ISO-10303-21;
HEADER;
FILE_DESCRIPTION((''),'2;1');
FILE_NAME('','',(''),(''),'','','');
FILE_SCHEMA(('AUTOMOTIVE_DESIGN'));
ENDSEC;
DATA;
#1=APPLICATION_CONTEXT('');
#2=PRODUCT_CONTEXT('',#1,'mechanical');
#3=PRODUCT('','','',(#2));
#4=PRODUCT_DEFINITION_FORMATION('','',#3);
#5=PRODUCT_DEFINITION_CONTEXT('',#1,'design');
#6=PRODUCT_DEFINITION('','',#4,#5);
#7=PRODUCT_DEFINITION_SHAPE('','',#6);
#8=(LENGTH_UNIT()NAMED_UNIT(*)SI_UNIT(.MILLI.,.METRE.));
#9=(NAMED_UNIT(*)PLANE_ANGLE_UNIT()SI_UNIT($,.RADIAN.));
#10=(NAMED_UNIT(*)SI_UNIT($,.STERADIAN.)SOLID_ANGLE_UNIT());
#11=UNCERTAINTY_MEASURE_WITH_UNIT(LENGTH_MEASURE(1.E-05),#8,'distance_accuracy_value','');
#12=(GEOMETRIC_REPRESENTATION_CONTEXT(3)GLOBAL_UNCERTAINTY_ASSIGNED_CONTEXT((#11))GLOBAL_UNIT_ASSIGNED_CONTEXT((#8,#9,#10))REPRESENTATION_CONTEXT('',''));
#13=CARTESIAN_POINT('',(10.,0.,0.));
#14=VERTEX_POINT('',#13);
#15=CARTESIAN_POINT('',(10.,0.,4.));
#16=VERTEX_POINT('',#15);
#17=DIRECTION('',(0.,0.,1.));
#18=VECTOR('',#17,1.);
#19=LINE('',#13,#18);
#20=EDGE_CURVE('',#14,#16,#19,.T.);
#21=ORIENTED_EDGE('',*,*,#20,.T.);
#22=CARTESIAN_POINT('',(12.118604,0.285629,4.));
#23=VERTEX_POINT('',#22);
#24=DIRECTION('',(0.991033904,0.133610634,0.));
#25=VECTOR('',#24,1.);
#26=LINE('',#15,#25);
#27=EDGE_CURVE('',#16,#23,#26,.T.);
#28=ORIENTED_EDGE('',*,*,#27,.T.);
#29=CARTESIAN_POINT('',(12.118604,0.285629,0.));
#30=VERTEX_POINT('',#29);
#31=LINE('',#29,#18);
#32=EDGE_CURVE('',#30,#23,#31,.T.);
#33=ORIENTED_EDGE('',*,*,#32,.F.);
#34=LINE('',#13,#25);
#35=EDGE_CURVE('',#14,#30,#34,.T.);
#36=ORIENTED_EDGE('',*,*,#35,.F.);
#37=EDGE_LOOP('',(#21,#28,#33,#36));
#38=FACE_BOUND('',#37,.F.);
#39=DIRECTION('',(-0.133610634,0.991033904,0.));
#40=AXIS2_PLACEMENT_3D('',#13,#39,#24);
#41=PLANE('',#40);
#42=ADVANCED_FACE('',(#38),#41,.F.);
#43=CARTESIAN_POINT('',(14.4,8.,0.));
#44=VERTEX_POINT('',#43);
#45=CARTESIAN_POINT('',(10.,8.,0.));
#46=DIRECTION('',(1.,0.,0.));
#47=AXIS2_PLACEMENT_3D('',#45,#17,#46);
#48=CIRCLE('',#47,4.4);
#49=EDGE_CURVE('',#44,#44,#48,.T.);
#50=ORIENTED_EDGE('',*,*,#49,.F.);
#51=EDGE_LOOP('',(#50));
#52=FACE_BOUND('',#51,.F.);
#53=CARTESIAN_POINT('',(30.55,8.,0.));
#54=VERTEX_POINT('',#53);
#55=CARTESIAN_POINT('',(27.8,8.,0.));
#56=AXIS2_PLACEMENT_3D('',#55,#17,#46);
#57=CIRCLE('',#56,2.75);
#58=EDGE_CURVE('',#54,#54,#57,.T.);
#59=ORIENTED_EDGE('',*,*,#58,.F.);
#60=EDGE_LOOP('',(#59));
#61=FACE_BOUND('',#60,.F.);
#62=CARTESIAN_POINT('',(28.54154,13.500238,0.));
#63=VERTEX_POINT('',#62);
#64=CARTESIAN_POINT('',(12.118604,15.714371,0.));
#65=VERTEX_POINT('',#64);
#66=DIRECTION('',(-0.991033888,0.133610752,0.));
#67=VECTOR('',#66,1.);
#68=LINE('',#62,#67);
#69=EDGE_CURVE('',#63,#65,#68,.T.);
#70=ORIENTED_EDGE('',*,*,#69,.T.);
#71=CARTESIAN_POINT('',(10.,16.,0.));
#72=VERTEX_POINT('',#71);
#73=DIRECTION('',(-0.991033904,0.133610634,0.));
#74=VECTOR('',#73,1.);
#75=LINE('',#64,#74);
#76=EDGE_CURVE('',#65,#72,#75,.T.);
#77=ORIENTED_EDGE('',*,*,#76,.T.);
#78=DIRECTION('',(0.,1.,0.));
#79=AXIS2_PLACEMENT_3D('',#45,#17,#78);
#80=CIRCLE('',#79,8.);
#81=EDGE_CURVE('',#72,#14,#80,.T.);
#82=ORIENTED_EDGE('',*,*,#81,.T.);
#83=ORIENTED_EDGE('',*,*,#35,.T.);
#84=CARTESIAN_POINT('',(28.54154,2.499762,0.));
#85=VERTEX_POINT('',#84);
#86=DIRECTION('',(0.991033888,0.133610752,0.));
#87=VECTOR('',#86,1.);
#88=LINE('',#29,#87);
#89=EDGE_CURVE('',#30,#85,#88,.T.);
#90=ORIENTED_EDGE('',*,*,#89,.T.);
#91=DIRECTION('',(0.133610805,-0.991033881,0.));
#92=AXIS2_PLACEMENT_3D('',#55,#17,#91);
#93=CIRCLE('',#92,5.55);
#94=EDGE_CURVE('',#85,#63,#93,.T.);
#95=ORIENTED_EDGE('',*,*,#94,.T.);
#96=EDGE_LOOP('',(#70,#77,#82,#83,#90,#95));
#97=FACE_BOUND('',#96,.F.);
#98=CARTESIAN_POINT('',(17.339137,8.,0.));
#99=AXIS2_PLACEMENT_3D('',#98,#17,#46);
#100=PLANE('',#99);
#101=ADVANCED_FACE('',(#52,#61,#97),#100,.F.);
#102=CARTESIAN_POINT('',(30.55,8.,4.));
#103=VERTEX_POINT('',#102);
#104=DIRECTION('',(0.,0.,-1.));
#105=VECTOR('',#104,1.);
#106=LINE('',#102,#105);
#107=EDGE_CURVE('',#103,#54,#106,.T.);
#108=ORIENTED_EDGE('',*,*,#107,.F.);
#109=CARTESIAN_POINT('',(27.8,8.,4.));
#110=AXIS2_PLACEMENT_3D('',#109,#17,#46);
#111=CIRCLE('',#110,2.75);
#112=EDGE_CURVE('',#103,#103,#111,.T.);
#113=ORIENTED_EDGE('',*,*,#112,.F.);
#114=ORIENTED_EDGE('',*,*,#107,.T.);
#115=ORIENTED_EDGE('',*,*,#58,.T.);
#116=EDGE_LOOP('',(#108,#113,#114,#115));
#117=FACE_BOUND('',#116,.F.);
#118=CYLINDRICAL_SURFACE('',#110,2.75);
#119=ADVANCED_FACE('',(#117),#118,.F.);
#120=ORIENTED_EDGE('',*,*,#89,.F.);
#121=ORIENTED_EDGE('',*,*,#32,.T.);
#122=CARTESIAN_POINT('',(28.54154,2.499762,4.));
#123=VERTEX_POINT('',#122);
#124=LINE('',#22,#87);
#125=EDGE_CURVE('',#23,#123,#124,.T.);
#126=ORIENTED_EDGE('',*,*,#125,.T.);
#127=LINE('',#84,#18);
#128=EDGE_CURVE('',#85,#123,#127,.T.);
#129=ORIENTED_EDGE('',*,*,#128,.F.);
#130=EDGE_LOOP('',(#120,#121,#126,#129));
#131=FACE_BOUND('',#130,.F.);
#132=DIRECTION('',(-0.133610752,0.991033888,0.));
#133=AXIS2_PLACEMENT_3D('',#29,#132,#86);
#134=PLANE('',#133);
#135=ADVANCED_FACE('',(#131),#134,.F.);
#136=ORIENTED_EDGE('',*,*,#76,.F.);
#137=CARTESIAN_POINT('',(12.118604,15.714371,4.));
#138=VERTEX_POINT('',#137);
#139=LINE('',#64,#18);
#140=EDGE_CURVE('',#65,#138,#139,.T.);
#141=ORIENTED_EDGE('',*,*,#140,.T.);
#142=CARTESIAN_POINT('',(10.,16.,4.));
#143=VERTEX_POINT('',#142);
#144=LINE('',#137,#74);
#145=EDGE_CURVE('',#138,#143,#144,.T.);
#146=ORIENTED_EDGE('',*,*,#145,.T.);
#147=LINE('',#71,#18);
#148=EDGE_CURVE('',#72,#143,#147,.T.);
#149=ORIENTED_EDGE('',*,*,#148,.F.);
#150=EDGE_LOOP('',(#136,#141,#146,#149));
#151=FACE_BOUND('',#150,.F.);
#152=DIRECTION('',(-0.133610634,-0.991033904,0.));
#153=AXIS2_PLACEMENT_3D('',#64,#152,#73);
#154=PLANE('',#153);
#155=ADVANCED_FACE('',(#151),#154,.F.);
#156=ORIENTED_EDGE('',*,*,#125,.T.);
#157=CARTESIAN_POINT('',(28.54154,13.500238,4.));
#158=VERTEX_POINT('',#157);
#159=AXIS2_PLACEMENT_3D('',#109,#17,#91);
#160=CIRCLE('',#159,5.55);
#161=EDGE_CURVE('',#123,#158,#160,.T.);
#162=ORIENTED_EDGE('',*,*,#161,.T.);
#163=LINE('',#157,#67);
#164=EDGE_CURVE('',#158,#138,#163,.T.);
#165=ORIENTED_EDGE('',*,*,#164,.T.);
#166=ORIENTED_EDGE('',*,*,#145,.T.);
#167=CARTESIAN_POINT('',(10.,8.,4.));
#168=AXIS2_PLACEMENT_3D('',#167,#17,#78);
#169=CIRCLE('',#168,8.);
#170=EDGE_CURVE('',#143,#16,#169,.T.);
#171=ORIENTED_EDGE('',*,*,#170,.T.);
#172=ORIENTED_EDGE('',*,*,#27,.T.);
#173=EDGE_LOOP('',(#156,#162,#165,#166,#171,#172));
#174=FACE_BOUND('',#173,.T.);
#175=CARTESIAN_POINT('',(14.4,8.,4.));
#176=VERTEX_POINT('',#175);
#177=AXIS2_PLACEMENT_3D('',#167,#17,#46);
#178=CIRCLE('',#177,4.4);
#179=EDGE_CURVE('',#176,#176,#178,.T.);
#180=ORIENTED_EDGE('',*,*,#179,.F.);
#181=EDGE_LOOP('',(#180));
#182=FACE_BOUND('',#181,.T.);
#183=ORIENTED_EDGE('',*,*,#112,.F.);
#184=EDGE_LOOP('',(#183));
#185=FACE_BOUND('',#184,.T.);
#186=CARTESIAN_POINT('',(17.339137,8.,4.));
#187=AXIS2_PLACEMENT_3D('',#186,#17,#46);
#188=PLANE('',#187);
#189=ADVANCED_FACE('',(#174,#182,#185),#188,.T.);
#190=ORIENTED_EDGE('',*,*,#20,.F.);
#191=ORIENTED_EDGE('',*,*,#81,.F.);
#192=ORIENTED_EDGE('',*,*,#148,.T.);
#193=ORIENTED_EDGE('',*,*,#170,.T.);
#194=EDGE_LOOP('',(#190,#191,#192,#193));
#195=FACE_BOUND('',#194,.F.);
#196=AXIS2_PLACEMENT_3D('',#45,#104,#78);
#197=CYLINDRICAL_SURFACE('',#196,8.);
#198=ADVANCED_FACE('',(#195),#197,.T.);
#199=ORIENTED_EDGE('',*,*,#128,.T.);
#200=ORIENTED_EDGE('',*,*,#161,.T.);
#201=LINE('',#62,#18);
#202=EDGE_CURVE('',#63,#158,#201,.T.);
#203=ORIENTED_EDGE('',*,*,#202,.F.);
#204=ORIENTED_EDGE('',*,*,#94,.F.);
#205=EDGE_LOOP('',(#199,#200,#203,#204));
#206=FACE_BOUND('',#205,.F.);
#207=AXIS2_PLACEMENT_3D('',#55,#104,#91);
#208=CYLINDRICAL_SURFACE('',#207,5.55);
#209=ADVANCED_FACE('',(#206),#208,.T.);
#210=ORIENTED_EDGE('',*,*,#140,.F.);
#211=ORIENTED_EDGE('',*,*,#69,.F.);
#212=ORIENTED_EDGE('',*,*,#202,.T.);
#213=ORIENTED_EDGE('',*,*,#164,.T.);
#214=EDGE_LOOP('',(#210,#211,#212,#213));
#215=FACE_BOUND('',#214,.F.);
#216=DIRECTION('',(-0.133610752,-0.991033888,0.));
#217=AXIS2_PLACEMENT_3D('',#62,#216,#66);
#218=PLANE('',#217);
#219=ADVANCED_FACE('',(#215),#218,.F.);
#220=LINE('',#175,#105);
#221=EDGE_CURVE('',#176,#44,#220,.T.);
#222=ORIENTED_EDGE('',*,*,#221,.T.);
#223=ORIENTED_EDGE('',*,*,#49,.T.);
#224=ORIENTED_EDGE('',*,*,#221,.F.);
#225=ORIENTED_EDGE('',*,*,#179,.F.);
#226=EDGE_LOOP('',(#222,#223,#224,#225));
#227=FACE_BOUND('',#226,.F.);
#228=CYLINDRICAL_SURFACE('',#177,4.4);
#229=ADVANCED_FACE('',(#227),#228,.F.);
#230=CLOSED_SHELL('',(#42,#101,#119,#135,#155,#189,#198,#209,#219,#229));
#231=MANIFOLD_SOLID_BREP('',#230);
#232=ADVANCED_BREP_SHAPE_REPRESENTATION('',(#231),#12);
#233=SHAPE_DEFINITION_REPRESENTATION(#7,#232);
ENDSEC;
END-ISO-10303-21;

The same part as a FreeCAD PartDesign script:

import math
import FreeCAD as App
import Part
import Sketcher

doc = App.newDocument("Part")
body = doc.addObject("PartDesign::Body", "Body")

sketch1 = body.newObject("Sketcher::SketchObject", "Sketch")
sketch1.AttachmentSupport = (doc.getObject("XY_Plane"), [""])
sketch1.MapMode = "FlatFace"
sketch1.addGeometry([
    Part.LineSegment(App.Vector(28.5, 13.5, 0), App.Vector(12.1, 15.7, 0)),
    Part.LineSegment(App.Vector(12.1, 15.7, 0), App.Vector(10, 16, 0)),
    Part.ArcOfCircle(Part.Circle(App.Vector(10, 8, 0), App.Vector(0, 0, 1), 8), math.radians(90), math.radians(270)),
    Part.LineSegment(App.Vector(10, 0, 0), App.Vector(12.1, 0.3, 0)),
    Part.LineSegment(App.Vector(12.1, 0.3, 0), App.Vector(28.5, 2.5, 0)),
    Part.ArcOfCircle(Part.Circle(App.Vector(27.8, 8, 0), App.Vector(0, 0, 1), 5.5), math.radians(-82), math.radians(82)),
], False)
sketch1.addConstraint([
    Sketcher.Constraint("Coincident", 0, 2, 1, 1),
    Sketcher.Constraint("Coincident", 1, 2, 2, 1),
    Sketcher.Constraint("Coincident", 2, 2, 3, 1),
    Sketcher.Constraint("Coincident", 3, 2, 4, 1),
    Sketcher.Constraint("Tangent", 4, 2, 5, 1),
    Sketcher.Constraint("Tangent", 5, 2, 0, 1),
    Sketcher.Constraint("PointOnObject", 2, 2, -1),
    Sketcher.Constraint("Parallel", 0, 1),
    Sketcher.Constraint("Parallel", 3, 4),
    Sketcher.Constraint("Horizontal", 2, 3, 5, 3),
    Sketcher.Constraint("Vertical", 2, 3, 1, 2),
    Sketcher.Constraint("Vertical", 1, 2, 2, 2),
    Sketcher.Constraint("Vertical", 0, 2, 3, 2),
    Sketcher.Constraint("Radius", 2, 8.0),
    Sketcher.Constraint("Radius", 5, 5.55),
    Sketcher.Constraint("DistanceX", -1, 1, 2, 3, 10.0),
    Sketcher.Constraint("DistanceX", -1, 1, 5, 3, 27.8),
    Sketcher.Constraint("Distance", 0, 16.571518),
])
pad1 = body.newObject("PartDesign::Pad", "Pad")
pad1.Profile = sketch1
pad1.Length = 4

sketch2 = body.newObject("Sketcher::SketchObject", "Sketch001")
sketch2.AttachmentSupport = (doc.getObject("XY_Plane"), [""])
sketch2.MapMode = "FlatFace"
sketch2.AttachmentOffset = App.Placement(App.Vector(0, 0, 4), App.Rotation())
sketch2.addGeometry([
    Part.Circle(App.Vector(10, 8, 0), App.Vector(0, 0, 1), 4.4),
    Part.Circle(App.Vector(27.8, 8, 0), App.Vector(0, 0, 1), 2.8),
], False)
sketch2.addConstraint([
    Sketcher.Constraint("Horizontal", 0, 3, 1, 3),
    Sketcher.Constraint("Diameter", 0, 8.8),
    Sketcher.Constraint("Diameter", 1, 5.5),
    Sketcher.Constraint("DistanceX", -1, 1, 0, 3, 10.0),
    Sketcher.Constraint("DistanceY", -1, 1, 0, 3, 8.0),
    Sketcher.Constraint("DistanceX", -1, 1, 1, 3, 27.8),
])
pocket1 = body.newObject("PartDesign::Pocket", "Pocket")
pocket1.Profile = sketch2
pocket1.Type = "ThroughAll"

doc.recompute()
